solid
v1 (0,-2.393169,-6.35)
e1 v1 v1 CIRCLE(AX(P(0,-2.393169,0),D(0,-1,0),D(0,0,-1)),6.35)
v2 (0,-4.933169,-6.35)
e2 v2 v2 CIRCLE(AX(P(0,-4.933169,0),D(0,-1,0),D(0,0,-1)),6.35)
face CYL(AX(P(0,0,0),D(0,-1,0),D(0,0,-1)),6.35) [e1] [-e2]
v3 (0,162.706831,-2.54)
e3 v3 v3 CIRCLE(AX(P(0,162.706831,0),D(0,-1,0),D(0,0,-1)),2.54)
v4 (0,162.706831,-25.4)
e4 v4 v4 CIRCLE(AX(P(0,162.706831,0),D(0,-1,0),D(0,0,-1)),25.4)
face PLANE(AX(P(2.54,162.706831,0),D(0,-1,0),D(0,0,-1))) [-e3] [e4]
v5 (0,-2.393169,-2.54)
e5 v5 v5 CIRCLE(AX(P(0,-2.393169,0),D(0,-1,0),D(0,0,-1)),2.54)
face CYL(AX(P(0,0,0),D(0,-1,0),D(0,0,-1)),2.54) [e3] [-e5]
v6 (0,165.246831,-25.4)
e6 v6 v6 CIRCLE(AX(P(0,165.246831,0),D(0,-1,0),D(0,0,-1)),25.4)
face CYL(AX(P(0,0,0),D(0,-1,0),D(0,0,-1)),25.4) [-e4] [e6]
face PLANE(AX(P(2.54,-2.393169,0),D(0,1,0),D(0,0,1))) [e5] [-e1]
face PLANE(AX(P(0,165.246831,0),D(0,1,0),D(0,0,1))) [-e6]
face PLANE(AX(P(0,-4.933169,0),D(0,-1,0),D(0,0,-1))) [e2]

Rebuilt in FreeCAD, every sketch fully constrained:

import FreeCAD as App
import Part
import Sketcher

V = App.Vector
Q = App.Units.Quantity


def add_polygon(sketch, points):
    """Adds a closed chain of lines whose ends are joined by coincident constraints."""
    first, n = sketch.GeometryCount, len(points)
    for a, b in zip(points, points[1:] + points[:1]):
        sketch.addGeometry(Part.LineSegment(App.Vector(*a, 0), App.Vector(*b, 0)), False)
    for i in range(n):
        sketch.addConstraint(Sketcher.Constraint("Coincident", first + i, 2, first + (i + 1) % n, 1))

doc = App.newDocument("Part")
body = doc.addObject("PartDesign::Body", "Body")

# Sketch on XY plane
sketch1 = body.newObject("Sketcher::SketchObject", "Sketch")
sketch1.AttachmentSupport = (doc.getObject("XY_Plane"), [""])
sketch1.MapMode = "FlatFace"
add_polygon(sketch1, [(0, 165.2), (0, -4.9), (6.3, -4.9), (6.3, -2.4), (2.5, -2.4), (2.5, 162.7), (25.4, 162.7), (25.4, 165.2)])  # lines 0-7
sketch1.addConstraint([
    Sketcher.Constraint("Vertical", 0),
    Sketcher.Constraint("Horizontal", 1),
    Sketcher.Constraint("Vertical", 2),
    Sketcher.Constraint("Horizontal", 3),
    Sketcher.Constraint("Vertical", 4),
    Sketcher.Constraint("Horizontal", 5),
    Sketcher.Constraint("Vertical", 6),
    Sketcher.Constraint("Horizontal", 7),
    Sketcher.Constraint("PointOnObject", 0, 2, -2),
    Sketcher.Constraint("Equal", 2, 6),
    Sketcher.Constraint("DistanceX", 7, 2, 7, 1, Q("1 in")),
    Sketcher.Constraint("DistanceX", 5, 1, 5, 2, Q("0.9 in")),
    Sketcher.Constraint("DistanceY", 0, 2, 0, 1, Q("6.7 in")),
    Sketcher.Constraint("DistanceY", 2, 1, 2, 2, Q("0.1 in")),
    Sketcher.Constraint("DistanceX", 1, 1, 1, 2, Q("0.25 in")),
    Sketcher.Constraint("DistanceY", 0, 2, -1, 1, Q("4.933169 mm")),
])
revolution = body.newObject("PartDesign::Revolution", "Revolution")
revolution.Profile = sketch1
revolution.ReferenceAxis = (sketch1, ["V_Axis"])
revolution.Angle = 360

doc.recompute()
